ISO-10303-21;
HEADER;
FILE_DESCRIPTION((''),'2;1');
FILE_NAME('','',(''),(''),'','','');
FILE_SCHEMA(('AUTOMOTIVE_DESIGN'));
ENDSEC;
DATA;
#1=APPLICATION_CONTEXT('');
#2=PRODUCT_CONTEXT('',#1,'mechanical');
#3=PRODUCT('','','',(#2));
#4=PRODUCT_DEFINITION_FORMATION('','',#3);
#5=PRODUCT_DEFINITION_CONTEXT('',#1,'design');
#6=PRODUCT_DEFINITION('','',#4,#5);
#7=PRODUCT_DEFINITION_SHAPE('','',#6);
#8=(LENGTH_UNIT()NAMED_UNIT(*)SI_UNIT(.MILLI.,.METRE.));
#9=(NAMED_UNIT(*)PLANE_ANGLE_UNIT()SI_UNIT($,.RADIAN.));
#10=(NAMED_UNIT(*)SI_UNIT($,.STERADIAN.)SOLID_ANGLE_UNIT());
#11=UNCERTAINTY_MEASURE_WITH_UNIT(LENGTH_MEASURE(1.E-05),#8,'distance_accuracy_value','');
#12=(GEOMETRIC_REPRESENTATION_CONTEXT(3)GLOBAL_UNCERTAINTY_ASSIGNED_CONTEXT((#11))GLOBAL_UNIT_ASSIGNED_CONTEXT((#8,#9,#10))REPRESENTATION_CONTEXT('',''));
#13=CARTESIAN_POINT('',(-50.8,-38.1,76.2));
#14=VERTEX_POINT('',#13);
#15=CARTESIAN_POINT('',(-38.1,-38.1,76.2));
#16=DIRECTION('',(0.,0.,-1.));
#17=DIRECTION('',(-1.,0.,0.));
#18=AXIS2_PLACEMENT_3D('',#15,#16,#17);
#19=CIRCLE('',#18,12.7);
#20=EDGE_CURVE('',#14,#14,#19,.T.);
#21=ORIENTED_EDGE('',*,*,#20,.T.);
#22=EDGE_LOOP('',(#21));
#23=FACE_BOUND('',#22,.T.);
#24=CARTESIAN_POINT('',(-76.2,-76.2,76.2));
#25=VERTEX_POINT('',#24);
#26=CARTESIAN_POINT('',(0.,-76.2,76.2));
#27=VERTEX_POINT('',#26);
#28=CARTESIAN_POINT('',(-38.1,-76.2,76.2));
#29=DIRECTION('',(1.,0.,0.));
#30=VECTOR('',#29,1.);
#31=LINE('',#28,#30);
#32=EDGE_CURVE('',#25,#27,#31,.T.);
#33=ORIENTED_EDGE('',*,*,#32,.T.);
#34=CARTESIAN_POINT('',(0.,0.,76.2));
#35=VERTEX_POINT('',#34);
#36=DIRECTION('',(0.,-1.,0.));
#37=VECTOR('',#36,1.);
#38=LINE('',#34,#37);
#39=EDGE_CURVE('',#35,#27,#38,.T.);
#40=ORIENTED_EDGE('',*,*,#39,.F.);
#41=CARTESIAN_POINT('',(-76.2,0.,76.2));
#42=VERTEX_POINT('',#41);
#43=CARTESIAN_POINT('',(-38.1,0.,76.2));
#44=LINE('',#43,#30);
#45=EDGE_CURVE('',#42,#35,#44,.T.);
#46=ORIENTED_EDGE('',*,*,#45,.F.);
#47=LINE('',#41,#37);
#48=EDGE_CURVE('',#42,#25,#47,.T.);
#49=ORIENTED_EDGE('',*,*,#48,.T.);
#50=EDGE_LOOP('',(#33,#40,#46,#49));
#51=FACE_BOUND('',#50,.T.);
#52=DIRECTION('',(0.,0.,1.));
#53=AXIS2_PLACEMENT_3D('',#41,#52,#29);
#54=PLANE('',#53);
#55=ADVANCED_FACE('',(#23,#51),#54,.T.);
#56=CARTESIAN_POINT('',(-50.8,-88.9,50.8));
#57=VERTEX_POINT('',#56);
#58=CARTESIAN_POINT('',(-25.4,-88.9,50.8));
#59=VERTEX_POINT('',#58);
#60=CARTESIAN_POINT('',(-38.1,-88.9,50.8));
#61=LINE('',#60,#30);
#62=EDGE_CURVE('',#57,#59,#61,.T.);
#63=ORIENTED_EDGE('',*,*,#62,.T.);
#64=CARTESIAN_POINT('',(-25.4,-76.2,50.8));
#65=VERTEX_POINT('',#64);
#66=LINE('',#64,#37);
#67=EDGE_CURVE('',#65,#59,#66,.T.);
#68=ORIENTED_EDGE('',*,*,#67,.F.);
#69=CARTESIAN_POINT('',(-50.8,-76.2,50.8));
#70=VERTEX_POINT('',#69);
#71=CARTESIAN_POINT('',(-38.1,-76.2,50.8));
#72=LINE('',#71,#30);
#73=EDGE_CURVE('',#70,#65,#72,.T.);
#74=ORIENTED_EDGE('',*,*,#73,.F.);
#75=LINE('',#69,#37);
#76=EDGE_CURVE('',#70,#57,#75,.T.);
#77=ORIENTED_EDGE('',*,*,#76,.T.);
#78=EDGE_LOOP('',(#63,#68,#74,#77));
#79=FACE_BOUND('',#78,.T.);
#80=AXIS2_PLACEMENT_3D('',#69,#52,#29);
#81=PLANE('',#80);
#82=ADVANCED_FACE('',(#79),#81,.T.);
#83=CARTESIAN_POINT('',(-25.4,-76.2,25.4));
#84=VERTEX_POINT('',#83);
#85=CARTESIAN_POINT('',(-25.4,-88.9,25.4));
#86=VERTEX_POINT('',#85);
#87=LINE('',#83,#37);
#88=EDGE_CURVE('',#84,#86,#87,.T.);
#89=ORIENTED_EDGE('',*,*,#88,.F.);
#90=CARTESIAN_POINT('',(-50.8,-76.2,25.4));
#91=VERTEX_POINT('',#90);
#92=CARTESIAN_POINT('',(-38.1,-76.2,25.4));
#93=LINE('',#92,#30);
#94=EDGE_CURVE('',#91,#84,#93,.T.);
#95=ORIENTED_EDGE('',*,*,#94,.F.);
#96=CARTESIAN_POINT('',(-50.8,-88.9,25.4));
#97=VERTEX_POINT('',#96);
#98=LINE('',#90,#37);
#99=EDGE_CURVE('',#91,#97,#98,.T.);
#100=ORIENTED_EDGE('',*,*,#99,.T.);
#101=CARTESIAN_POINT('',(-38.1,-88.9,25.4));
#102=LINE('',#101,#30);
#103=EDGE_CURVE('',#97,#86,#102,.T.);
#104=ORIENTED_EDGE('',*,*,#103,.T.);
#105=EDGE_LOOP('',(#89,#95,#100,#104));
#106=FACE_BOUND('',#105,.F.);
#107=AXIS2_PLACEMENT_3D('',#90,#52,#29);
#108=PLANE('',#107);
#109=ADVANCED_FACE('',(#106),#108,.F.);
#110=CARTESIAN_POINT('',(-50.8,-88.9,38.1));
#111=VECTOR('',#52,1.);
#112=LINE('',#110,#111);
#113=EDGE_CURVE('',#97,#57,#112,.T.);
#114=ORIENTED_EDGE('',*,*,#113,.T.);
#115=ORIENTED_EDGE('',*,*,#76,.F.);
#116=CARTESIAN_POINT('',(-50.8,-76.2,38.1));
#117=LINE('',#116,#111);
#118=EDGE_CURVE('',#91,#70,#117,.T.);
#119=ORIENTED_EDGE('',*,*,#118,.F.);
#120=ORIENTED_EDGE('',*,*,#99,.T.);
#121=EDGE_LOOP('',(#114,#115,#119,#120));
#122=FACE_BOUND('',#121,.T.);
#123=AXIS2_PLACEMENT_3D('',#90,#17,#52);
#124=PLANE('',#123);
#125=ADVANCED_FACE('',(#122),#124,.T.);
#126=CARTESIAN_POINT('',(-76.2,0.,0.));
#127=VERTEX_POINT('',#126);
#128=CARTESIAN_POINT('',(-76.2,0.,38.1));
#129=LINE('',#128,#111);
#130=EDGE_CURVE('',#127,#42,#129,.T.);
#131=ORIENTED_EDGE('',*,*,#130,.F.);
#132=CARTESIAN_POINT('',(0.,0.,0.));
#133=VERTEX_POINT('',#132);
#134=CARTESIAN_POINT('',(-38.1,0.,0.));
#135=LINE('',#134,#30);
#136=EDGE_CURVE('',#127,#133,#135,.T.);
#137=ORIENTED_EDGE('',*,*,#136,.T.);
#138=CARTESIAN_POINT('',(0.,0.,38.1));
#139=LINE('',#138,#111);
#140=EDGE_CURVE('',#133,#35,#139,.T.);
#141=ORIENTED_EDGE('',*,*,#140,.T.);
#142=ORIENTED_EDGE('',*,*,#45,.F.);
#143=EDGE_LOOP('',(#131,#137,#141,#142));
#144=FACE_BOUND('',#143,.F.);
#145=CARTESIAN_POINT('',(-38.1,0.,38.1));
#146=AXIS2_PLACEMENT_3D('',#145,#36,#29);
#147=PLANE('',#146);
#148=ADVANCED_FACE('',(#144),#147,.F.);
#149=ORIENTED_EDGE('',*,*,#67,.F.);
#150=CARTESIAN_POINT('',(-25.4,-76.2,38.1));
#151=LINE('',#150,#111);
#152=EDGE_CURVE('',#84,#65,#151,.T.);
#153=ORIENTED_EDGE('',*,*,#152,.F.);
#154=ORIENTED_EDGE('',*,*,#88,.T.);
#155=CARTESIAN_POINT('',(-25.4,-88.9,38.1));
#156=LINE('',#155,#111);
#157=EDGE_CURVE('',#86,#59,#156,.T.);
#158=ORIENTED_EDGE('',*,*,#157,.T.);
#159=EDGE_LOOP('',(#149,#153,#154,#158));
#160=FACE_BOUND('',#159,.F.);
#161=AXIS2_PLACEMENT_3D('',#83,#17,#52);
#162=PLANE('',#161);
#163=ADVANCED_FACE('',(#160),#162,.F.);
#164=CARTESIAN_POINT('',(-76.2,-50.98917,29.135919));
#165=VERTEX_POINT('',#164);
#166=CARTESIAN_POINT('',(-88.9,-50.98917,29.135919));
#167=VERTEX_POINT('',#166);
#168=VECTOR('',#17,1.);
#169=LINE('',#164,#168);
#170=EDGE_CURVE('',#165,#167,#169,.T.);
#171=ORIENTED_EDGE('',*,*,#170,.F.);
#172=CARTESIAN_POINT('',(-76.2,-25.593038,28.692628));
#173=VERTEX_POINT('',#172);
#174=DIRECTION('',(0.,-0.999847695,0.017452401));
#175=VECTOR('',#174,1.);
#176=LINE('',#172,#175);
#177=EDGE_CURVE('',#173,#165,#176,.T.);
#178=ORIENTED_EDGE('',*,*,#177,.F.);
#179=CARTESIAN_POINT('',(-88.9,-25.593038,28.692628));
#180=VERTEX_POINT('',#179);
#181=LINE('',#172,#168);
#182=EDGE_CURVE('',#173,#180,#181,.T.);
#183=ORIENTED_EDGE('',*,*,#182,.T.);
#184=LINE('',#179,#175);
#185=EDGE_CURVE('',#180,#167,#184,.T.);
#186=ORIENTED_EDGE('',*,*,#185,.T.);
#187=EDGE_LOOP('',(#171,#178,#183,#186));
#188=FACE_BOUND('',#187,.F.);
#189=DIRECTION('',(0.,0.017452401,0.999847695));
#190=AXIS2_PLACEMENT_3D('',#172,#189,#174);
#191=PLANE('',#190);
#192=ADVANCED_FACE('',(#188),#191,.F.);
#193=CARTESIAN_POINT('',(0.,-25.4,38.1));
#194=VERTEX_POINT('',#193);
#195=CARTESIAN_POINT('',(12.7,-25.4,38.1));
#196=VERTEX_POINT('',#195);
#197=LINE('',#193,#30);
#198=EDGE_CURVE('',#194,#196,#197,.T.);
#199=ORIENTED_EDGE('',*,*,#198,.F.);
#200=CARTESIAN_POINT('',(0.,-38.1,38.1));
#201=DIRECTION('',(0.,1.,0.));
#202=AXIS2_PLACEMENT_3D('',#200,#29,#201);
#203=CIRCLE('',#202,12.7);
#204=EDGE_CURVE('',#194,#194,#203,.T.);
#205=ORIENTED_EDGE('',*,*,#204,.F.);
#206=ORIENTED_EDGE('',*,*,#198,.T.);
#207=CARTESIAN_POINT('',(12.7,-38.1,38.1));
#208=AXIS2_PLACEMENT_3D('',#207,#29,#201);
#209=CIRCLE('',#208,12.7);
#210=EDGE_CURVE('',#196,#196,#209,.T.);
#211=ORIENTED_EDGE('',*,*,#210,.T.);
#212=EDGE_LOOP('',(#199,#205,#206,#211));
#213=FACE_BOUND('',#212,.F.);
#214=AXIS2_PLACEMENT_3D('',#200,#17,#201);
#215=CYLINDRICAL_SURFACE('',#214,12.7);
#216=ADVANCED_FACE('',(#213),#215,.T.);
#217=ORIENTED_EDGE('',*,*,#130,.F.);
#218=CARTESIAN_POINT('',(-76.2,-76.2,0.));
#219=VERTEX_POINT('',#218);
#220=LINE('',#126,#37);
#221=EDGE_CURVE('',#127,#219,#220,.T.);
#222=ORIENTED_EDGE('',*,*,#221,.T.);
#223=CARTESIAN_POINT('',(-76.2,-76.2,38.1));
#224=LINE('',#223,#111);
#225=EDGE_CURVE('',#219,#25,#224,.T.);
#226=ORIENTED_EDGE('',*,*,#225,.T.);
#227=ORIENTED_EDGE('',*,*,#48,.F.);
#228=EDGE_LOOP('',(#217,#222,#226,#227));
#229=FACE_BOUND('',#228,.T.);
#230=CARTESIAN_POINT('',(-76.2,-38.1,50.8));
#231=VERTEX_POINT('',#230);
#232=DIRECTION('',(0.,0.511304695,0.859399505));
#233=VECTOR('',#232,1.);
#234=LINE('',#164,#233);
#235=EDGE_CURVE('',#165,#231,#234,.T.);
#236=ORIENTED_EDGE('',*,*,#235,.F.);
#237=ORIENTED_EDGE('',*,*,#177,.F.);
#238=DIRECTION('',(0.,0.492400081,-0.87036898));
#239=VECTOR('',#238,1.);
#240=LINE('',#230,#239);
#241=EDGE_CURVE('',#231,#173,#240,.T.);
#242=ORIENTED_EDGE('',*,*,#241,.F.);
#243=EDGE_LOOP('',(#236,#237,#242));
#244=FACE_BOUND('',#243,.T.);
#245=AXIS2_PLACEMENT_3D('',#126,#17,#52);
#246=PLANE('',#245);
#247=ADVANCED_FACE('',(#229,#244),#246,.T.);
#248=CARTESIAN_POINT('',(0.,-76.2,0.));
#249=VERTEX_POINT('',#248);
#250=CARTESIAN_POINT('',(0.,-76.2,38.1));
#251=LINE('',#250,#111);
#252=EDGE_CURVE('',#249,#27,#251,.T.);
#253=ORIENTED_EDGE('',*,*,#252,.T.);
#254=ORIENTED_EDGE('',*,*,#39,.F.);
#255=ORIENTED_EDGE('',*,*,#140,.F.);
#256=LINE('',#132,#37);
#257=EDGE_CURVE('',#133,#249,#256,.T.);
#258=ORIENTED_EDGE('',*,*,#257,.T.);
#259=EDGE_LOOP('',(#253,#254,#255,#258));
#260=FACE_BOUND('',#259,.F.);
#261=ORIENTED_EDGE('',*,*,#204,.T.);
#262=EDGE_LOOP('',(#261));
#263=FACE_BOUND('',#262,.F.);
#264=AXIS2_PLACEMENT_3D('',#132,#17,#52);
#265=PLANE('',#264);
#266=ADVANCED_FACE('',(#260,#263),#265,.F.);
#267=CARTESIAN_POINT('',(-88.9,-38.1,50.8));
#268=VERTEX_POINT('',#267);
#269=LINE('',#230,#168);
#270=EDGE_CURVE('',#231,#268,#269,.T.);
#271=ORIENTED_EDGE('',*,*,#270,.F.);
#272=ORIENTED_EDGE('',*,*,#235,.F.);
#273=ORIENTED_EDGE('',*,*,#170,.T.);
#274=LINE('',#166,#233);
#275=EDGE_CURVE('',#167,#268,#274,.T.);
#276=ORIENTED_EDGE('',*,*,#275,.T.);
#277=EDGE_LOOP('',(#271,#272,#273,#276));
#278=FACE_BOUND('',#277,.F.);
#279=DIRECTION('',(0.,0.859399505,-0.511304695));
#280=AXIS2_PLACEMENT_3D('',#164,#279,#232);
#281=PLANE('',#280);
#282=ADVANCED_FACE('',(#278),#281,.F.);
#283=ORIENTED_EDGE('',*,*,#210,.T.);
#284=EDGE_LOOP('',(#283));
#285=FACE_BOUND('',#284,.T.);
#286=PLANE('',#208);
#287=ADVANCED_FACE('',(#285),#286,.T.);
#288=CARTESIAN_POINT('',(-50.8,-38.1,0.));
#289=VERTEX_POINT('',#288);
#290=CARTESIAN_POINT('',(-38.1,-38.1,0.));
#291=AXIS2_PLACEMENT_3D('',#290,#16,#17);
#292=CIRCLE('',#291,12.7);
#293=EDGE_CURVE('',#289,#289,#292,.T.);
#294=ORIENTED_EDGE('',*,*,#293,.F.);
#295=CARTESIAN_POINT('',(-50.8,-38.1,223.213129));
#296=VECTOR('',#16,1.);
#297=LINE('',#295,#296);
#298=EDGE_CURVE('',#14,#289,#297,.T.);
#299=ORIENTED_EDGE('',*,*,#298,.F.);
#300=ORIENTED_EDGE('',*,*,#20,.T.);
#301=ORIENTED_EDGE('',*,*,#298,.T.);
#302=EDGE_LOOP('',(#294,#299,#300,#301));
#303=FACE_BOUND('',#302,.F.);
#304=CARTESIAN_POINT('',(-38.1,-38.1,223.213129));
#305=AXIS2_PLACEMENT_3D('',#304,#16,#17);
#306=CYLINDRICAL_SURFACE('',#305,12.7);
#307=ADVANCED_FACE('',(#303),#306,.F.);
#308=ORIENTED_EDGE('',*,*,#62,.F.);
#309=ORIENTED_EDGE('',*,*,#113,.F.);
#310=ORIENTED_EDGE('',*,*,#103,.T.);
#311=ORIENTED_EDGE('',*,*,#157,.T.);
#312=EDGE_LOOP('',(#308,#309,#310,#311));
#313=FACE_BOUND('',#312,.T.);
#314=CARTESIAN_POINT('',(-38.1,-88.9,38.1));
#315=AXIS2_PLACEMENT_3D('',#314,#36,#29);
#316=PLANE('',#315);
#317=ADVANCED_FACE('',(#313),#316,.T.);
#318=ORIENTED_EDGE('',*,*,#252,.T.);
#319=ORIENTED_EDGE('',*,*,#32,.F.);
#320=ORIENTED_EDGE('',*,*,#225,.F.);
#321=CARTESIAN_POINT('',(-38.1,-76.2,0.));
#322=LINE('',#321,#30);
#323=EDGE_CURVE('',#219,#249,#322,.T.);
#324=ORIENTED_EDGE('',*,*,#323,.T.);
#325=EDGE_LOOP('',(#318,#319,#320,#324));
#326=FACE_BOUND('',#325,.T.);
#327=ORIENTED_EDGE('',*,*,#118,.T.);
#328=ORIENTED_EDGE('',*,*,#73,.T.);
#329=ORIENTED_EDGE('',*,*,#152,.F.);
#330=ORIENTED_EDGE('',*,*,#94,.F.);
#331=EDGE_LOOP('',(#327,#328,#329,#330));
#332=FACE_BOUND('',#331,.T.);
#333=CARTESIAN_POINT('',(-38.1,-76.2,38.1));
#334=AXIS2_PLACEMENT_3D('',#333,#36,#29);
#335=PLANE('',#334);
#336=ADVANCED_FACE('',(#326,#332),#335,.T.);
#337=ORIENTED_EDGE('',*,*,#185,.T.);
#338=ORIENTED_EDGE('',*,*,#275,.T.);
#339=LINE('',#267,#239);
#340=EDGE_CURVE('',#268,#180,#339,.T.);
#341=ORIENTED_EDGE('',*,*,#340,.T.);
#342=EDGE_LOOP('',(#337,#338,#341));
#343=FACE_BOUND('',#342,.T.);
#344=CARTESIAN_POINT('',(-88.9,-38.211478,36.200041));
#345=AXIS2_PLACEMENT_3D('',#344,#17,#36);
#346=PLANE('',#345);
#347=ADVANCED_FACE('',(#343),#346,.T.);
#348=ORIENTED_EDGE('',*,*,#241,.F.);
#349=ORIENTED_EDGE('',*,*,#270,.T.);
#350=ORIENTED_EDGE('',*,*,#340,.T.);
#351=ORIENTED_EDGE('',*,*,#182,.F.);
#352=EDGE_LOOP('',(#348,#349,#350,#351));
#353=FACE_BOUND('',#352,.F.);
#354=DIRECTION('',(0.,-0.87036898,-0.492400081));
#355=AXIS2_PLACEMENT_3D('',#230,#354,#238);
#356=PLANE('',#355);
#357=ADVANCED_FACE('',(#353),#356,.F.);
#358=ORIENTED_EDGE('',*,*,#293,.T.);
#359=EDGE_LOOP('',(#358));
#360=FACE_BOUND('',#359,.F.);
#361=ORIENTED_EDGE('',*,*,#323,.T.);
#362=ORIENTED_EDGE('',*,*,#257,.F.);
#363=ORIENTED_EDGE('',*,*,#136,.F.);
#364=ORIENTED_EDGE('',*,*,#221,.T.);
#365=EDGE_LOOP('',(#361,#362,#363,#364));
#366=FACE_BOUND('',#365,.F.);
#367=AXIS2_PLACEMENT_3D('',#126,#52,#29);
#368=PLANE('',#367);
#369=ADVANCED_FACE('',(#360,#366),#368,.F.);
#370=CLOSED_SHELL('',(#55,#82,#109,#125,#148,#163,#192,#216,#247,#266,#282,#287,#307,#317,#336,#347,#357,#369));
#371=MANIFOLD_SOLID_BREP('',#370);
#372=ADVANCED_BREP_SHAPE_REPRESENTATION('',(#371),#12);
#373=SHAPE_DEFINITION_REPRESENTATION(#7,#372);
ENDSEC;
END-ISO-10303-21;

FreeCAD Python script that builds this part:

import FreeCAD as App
import Part
import Sketcher
from FreeCAD import Vector
Q = App.Units.Quantity

doc = App.newDocument("Part")
body = doc.addObject("PartDesign::Body", "Body")

# Sketch on XZ plane
sketch1 = body.newObject("Sketcher::SketchObject", "Sketch")
sketch1.AttachmentSupport = (doc.getObject("XZ_Plane"), [""])
sketch1.MapMode = "FlatFace"
sketch1.addGeometry([
    Part.LineSegment(Vector(-76, 76, 0), Vector(-76, 0, 0)),
    Part.LineSegment(Vector(-76, 0, 0), Vector(0, 0, 0)),
    Part.LineSegment(Vector(0, 0, 0), Vector(0, 76, 0)),
    Part.LineSegment(Vector(0, 76, 0), Vector(-76, 76, 0)),
], False)
sketch1.addConstraint([
    Sketcher.Constraint("Coincident", 0, 2, 1, 1),
    Sketcher.Constraint("Coincident", 1, 2, 2, 1),
    Sketcher.Constraint("Coincident", 2, 2, 3, 1),
    Sketcher.Constraint("Coincident", 3, 2, 0, 1),
    Sketcher.Constraint("Vertical", 0),
    Sketcher.Constraint("Horizontal", 1),
    Sketcher.Constraint("Vertical", 2),
    Sketcher.Constraint("Horizontal", 3),
    Sketcher.Constraint("Coincident", 1, 2, -1, 1),
    Sketcher.Constraint("Equal", 3, 0),
    Sketcher.Constraint("DistanceX", 1, 1, 1, 2, Q("3 in")),
])
pad1 = body.newObject("PartDesign::Pad", "Pad")
pad1.Profile = sketch1
pad1.Length = Q("3 in")

# Sketch on XZ plane
sketch2 = body.newObject("Sketcher::SketchObject", "Sketch001")
sketch2.AttachmentSupport = (doc.getObject("XZ_Plane"), [""])
sketch2.MapMode = "FlatFace"
sketch2.AttachmentOffset = App.Placement(Vector(0, 0, 3 * 25.4), App.Rotation())
sketch2.addGeometry([
    Part.LineSegment(Vector(-51, 51, 0), Vector(-51, 25, 0)),
    Part.LineSegment(Vector(-51, 25, 0), Vector(-25, 25, 0)),
    Part.LineSegment(Vector(-25, 25, 0), Vector(-25, 51, 0)),
    Part.LineSegment(Vector(-25, 51, 0), Vector(-51, 51, 0)),
], False)
sketch2.addConstraint([
    Sketcher.Constraint("Coincident", 0, 2, 1, 1),
    Sketcher.Constraint("Coincident", 1, 2, 2, 1),
    Sketcher.Constraint("Coincident", 2, 2, 3, 1),
    Sketcher.Constraint("Coincident", 3, 2, 0, 1),
    Sketcher.Constraint("Vertical", 0),
    Sketcher.Constraint("Horizontal", 1),
    Sketcher.Constraint("Vertical", 2),
    Sketcher.Constraint("Horizontal", 3),
    Sketcher.Constraint("Equal", 3, 0),
    Sketcher.Constraint("DistanceX", 1, 1, 1, 2, Q("1 in")),
    Sketcher.Constraint("DistanceX", 0, 2, -1, 1, Q("2 in")),
    Sketcher.Constraint("DistanceY", -1, 1, 0, 2, Q("1 in")),
])
pad2 = body.newObject("PartDesign::Pad", "Pad001")
pad2.Profile = sketch2
pad2.Length = Q("0.5 in")

# Sketch on YZ plane
sketch3 = body.newObject("Sketcher::SketchObject", "Sketch002")
sketch3.AttachmentSupport = (doc.getObject("YZ_Plane"), [""])
sketch3.MapMode = "FlatFace"
sketch3.addGeometry(Part.Circle(Vector(-38, 38, 0), Vector(0, 0, 1), 13), False)
sketch3.addConstraint([
    Sketcher.Constraint("Diameter", 0, Q("1 in")),
    Sketcher.Constraint("DistanceX", 0, 3, -1, 1, Q("1.5 in")),
    Sketcher.Constraint("DistanceY", -1, 1, 0, 3, Q("1.5 in")),
])
pad3 = body.newObject("PartDesign::Pad", "Pad002")
pad3.Profile = sketch3
pad3.Length = Q("0.5 in")

# Sketch on XY plane
sketch4 = body.newObject("Sketcher::SketchObject", "Sketch003")
sketch4.AttachmentSupport = (doc.getObject("XY_Plane"), [""])
sketch4.MapMode = "FlatFace"
sketch4.AttachmentOffset = App.Placement(Vector(0, 0, 3 * 25.4), App.Rotation())
sketch4.addGeometry(Part.Circle(Vector(-38, -38, 0), Vector(0, 0, 1), 13), False)
sketch4.addConstraint([
    Sketcher.Constraint("Diameter", 0, Q("1 in")),
    Sketcher.Constraint("DistanceX", 0, 3, -1, 1, Q("1.5 in")),
    Sketcher.Constraint("DistanceY", 0, 3, -1, 1, Q("1.5 in")),
])
doc.recompute()
hole = body.newObject("PartDesign::Hole", "Hole")
hole.Profile = sketch4
hole.ThreadType = "None"
hole.Diameter = Q("1 in")
hole.DepthType = "ThroughAll"

# Sketch on YZ plane
sketch5 = body.newObject("Sketcher::SketchObject", "Sketch004")
sketch5.AttachmentSupport = (doc.getObject("YZ_Plane"), [""])
sketch5.MapMode = "FlatFace"
sketch5.AttachmentOffset = App.Placement(Vector(0, 0, -3 * 25.4), App.Rotation())
sketch5.addGeometry([
    Part.LineSegment(Vector(-38, 51, 0), Vector(-26, 29, 0)),
    Part.LineSegment(Vector(-26, 29, 0), Vector(-51, 29, 0)),
    Part.LineSegment(Vector(-51, 29, 0), Vector(-38, 51, 0)),
], False)
sketch5.addConstraint([
    Sketcher.Constraint("Coincident", 0, 2, 1, 1),
    Sketcher.Constraint("Coincident", 1, 2, 2, 1),
    Sketcher.Constraint("Coincident", 2, 2, 0, 1),
    Sketcher.Constraint("Equal", 0, 1),
    Sketcher.Constraint("Distance", 0, Q("1 in")),
    Sketcher.Constraint("DistanceY", -1, 1, 2, 2, Q("2 in")),
    Sketcher.Constraint("Angle", 1, Q("179 deg")),
    Sketcher.Constraint("DistanceX", 2, 2, -1, 1, Q("1.5 in")),
    Sketcher.Constraint("DistanceX", 0, 2, -1, 1, Q("1.0075999 in")),
])
pad4 = body.newObject("PartDesign::Pad", "Pad003")
pad4.Profile = sketch5
pad4.Length = Q("0.5 in")
pad4.Reversed = True

doc.recompute()
